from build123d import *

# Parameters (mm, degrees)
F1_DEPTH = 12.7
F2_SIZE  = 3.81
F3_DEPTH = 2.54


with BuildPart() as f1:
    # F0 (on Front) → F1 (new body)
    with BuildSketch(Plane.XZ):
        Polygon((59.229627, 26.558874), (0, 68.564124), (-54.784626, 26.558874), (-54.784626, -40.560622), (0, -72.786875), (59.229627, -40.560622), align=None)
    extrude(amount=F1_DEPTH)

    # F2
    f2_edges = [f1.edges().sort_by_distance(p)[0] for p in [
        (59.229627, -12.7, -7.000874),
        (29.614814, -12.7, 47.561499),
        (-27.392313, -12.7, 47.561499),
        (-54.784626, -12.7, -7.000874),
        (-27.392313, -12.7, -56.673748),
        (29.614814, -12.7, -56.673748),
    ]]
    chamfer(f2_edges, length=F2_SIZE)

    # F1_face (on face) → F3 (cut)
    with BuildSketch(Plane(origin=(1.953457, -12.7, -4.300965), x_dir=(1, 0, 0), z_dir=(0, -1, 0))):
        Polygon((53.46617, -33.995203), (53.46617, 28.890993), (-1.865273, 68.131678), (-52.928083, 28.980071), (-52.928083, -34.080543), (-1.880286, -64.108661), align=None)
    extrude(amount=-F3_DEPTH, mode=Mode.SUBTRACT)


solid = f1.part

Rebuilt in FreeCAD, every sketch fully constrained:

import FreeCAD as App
import Part
import Sketcher
from FreeCAD import Vector
Q = App.Units.Quantity


def edges_at(feature, points):
    """Names of the edges that pass closest to the given points."""
    edges = feature.Shape.Edges
    near = lambda p: min(range(len(edges)), key=lambda i: edges[i].distToShape(Part.Vertex(*p))[0])
    return sorted({f"Edge{near(p) + 1}" for p in points})

doc = App.newDocument("Part")
params = doc.addObject("Spreadsheet::Sheet", "Params")
for row, (alias, value) in enumerate([
    ("pad1_length", "0.5 in"),
    ("chamfer_size", "0.15 in"),
    ("pocket1_length", "0.1 in"),
], start=1):
    params.set(f"A{row}", alias)
    params.set(f"B{row}", "=" + value)
    params.setAlias(f"B{row}", alias)

body = doc.addObject("PartDesign::Body", "Body")

sketch1 = body.newObject("Sketcher::SketchObject", "Sketch")
sketch1.AttachmentSupport = (doc.getObject("XZ_Plane"), [""])
sketch1.MapMode = "FlatFace"
sketch1.addGeometry([
    Part.LineSegment(Vector(59, 27, 0), Vector(0, 69, 0)),
    Part.LineSegment(Vector(0, 69, 0), Vector(-55, 27, 0)),
    Part.LineSegment(Vector(-55, 27, 0), Vector(-55, -41, 0)),
    Part.LineSegment(Vector(-55, -41, 0), Vector(0, -73, 0)),
    Part.LineSegment(Vector(0, -73, 0), Vector(59, -41, 0)),
    Part.LineSegment(Vector(59, -41, 0), Vector(59, 27, 0)),
], False)
sketch1.addConstraint([
    Sketcher.Constraint("Coincident", 0, 2, 1, 1),
    Sketcher.Constraint("Coincident", 1, 2, 2, 1),
    Sketcher.Constraint("Coincident", 2, 2, 3, 1),
    Sketcher.Constraint("Coincident", 3, 2, 4, 1),
    Sketcher.Constraint("Coincident", 4, 2, 5, 1),
    Sketcher.Constraint("Coincident", 5, 2, 0, 1),
    Sketcher.Constraint("Vertical", 2),
    Sketcher.Constraint("Vertical", 5),
    Sketcher.Constraint("PointOnObject", 0, 2, -2),
    Sketcher.Constraint("PointOnObject", 3, 2, -2),
    Sketcher.Constraint("Horizontal", 2, 2, 4, 2),
    Sketcher.Constraint("Horizontal", 1, 2, 5, 2),
    Sketcher.Constraint("DistanceY", 2, 2, 2, 1, Q("2.6424998 in")),
    Sketcher.Constraint("DistanceY", 3, 2, 0, 2, Q("5.565 in")),
    Sketcher.Constraint("Distance", 0, 72.6126),
    Sketcher.Constraint("DistanceY", 1, 2, 0, 2, 42.00525),
    Sketcher.Constraint("Distance", 1, 69.034747),
    Sketcher.Constraint("DistanceY", -1, 1, 0, 2, 68.564124),
])
pad1 = body.newObject("PartDesign::Pad", "Pad")
pad1.Profile = sketch1
pad1.setExpression("Length", "Params.pad1_length")
doc.recompute()

chamfer = body.newObject("PartDesign::Chamfer", "Chamfer")
chamfer.Base = (pad1, edges_at(pad1, [
    (59.23, -12.7, -7.001),
    (29.615, -12.7, 47.561),
    (-27.392, -12.7, 47.561),
    (-54.785, -12.7, -7.001),
    (-27.392, -12.7, -56.674),
    (29.615, -12.7, -56.674),
]))
chamfer.setExpression("Size", "Params.chamfer_size")

sketch2 = body.newObject("Sketcher::SketchObject", "Sketch001")
sketch2.AttachmentSupport = (doc.getObject("XZ_Plane"), [""])
sketch2.MapMode = "FlatFace"
sketch2.AttachmentOffset = App.Placement(Vector(0, 0, 0.5 * 25.4), App.Rotation())
sketch2.addGeometry([
    Part.LineSegment(Vector(55, -38, 0), Vector(55, 25, 0)),
    Part.LineSegment(Vector(55, 25, 0), Vector(0, 64, 0)),
    Part.LineSegment(Vector(0, 64, 0), Vector(-51, 25, 0)),
    Part.LineSegment(Vector(-51, 25, 0), Vector(-51, -38, 0)),
    Part.LineSegment(Vector(-51, -38, 0), Vector(0, -68, 0)),
    Part.LineSegment(Vector(0, -68, 0), Vector(55, -38, 0)),
], False)
sketch2.addConstraint([
    Sketcher.Constraint("Coincident", 0, 2, 1, 1),
    Sketcher.Constraint("Coincident", 1, 2, 2, 1),
    Sketcher.Constraint("Coincident", 2, 2, 3, 1),
    Sketcher.Constraint("Coincident", 3, 2, 4, 1),
    Sketcher.Constraint("Coincident", 4, 2, 5, 1),
    Sketcher.Constraint("Coincident", 5, 2, 0, 1),
    Sketcher.Constraint("Vertical", 0),
    Sketcher.Constraint("Vertical", 3),
    Sketcher.Constraint("Distance", 1, 67.83362),
    Sketcher.Constraint("DistanceY", 0, 1, 0, 2, 62.886196),
    Sketcher.Constraint("DistanceY", 3, 2, 3, 1, 63.060614),
    Sketcher.Constraint("DistanceY", -1, 1, 0, 2, 24.590028),
    Sketcher.Constraint("DistanceX", -1, 1, 4, 2, 0.073171),
    Sketcher.Constraint("DistanceX", 2, 2, 1, 2, 51.06281),
    Sketcher.Constraint("DistanceY", 0, 2, 2, 2, 0.089078),
    Sketcher.Constraint("DistanceY", 3, 2, 1, 2, 102.212221),
    Sketcher.Constraint("DistanceY", 4, 2, 3, 2, 30.028118),
    Sketcher.Constraint("Distance", 4, 59.224703),
])
pocket1 = body.newObject("PartDesign::Pocket", "Pocket")
pocket1.Profile = sketch2
pocket1.setExpression("Length", "Params.pocket1_length")

doc.recompute()
